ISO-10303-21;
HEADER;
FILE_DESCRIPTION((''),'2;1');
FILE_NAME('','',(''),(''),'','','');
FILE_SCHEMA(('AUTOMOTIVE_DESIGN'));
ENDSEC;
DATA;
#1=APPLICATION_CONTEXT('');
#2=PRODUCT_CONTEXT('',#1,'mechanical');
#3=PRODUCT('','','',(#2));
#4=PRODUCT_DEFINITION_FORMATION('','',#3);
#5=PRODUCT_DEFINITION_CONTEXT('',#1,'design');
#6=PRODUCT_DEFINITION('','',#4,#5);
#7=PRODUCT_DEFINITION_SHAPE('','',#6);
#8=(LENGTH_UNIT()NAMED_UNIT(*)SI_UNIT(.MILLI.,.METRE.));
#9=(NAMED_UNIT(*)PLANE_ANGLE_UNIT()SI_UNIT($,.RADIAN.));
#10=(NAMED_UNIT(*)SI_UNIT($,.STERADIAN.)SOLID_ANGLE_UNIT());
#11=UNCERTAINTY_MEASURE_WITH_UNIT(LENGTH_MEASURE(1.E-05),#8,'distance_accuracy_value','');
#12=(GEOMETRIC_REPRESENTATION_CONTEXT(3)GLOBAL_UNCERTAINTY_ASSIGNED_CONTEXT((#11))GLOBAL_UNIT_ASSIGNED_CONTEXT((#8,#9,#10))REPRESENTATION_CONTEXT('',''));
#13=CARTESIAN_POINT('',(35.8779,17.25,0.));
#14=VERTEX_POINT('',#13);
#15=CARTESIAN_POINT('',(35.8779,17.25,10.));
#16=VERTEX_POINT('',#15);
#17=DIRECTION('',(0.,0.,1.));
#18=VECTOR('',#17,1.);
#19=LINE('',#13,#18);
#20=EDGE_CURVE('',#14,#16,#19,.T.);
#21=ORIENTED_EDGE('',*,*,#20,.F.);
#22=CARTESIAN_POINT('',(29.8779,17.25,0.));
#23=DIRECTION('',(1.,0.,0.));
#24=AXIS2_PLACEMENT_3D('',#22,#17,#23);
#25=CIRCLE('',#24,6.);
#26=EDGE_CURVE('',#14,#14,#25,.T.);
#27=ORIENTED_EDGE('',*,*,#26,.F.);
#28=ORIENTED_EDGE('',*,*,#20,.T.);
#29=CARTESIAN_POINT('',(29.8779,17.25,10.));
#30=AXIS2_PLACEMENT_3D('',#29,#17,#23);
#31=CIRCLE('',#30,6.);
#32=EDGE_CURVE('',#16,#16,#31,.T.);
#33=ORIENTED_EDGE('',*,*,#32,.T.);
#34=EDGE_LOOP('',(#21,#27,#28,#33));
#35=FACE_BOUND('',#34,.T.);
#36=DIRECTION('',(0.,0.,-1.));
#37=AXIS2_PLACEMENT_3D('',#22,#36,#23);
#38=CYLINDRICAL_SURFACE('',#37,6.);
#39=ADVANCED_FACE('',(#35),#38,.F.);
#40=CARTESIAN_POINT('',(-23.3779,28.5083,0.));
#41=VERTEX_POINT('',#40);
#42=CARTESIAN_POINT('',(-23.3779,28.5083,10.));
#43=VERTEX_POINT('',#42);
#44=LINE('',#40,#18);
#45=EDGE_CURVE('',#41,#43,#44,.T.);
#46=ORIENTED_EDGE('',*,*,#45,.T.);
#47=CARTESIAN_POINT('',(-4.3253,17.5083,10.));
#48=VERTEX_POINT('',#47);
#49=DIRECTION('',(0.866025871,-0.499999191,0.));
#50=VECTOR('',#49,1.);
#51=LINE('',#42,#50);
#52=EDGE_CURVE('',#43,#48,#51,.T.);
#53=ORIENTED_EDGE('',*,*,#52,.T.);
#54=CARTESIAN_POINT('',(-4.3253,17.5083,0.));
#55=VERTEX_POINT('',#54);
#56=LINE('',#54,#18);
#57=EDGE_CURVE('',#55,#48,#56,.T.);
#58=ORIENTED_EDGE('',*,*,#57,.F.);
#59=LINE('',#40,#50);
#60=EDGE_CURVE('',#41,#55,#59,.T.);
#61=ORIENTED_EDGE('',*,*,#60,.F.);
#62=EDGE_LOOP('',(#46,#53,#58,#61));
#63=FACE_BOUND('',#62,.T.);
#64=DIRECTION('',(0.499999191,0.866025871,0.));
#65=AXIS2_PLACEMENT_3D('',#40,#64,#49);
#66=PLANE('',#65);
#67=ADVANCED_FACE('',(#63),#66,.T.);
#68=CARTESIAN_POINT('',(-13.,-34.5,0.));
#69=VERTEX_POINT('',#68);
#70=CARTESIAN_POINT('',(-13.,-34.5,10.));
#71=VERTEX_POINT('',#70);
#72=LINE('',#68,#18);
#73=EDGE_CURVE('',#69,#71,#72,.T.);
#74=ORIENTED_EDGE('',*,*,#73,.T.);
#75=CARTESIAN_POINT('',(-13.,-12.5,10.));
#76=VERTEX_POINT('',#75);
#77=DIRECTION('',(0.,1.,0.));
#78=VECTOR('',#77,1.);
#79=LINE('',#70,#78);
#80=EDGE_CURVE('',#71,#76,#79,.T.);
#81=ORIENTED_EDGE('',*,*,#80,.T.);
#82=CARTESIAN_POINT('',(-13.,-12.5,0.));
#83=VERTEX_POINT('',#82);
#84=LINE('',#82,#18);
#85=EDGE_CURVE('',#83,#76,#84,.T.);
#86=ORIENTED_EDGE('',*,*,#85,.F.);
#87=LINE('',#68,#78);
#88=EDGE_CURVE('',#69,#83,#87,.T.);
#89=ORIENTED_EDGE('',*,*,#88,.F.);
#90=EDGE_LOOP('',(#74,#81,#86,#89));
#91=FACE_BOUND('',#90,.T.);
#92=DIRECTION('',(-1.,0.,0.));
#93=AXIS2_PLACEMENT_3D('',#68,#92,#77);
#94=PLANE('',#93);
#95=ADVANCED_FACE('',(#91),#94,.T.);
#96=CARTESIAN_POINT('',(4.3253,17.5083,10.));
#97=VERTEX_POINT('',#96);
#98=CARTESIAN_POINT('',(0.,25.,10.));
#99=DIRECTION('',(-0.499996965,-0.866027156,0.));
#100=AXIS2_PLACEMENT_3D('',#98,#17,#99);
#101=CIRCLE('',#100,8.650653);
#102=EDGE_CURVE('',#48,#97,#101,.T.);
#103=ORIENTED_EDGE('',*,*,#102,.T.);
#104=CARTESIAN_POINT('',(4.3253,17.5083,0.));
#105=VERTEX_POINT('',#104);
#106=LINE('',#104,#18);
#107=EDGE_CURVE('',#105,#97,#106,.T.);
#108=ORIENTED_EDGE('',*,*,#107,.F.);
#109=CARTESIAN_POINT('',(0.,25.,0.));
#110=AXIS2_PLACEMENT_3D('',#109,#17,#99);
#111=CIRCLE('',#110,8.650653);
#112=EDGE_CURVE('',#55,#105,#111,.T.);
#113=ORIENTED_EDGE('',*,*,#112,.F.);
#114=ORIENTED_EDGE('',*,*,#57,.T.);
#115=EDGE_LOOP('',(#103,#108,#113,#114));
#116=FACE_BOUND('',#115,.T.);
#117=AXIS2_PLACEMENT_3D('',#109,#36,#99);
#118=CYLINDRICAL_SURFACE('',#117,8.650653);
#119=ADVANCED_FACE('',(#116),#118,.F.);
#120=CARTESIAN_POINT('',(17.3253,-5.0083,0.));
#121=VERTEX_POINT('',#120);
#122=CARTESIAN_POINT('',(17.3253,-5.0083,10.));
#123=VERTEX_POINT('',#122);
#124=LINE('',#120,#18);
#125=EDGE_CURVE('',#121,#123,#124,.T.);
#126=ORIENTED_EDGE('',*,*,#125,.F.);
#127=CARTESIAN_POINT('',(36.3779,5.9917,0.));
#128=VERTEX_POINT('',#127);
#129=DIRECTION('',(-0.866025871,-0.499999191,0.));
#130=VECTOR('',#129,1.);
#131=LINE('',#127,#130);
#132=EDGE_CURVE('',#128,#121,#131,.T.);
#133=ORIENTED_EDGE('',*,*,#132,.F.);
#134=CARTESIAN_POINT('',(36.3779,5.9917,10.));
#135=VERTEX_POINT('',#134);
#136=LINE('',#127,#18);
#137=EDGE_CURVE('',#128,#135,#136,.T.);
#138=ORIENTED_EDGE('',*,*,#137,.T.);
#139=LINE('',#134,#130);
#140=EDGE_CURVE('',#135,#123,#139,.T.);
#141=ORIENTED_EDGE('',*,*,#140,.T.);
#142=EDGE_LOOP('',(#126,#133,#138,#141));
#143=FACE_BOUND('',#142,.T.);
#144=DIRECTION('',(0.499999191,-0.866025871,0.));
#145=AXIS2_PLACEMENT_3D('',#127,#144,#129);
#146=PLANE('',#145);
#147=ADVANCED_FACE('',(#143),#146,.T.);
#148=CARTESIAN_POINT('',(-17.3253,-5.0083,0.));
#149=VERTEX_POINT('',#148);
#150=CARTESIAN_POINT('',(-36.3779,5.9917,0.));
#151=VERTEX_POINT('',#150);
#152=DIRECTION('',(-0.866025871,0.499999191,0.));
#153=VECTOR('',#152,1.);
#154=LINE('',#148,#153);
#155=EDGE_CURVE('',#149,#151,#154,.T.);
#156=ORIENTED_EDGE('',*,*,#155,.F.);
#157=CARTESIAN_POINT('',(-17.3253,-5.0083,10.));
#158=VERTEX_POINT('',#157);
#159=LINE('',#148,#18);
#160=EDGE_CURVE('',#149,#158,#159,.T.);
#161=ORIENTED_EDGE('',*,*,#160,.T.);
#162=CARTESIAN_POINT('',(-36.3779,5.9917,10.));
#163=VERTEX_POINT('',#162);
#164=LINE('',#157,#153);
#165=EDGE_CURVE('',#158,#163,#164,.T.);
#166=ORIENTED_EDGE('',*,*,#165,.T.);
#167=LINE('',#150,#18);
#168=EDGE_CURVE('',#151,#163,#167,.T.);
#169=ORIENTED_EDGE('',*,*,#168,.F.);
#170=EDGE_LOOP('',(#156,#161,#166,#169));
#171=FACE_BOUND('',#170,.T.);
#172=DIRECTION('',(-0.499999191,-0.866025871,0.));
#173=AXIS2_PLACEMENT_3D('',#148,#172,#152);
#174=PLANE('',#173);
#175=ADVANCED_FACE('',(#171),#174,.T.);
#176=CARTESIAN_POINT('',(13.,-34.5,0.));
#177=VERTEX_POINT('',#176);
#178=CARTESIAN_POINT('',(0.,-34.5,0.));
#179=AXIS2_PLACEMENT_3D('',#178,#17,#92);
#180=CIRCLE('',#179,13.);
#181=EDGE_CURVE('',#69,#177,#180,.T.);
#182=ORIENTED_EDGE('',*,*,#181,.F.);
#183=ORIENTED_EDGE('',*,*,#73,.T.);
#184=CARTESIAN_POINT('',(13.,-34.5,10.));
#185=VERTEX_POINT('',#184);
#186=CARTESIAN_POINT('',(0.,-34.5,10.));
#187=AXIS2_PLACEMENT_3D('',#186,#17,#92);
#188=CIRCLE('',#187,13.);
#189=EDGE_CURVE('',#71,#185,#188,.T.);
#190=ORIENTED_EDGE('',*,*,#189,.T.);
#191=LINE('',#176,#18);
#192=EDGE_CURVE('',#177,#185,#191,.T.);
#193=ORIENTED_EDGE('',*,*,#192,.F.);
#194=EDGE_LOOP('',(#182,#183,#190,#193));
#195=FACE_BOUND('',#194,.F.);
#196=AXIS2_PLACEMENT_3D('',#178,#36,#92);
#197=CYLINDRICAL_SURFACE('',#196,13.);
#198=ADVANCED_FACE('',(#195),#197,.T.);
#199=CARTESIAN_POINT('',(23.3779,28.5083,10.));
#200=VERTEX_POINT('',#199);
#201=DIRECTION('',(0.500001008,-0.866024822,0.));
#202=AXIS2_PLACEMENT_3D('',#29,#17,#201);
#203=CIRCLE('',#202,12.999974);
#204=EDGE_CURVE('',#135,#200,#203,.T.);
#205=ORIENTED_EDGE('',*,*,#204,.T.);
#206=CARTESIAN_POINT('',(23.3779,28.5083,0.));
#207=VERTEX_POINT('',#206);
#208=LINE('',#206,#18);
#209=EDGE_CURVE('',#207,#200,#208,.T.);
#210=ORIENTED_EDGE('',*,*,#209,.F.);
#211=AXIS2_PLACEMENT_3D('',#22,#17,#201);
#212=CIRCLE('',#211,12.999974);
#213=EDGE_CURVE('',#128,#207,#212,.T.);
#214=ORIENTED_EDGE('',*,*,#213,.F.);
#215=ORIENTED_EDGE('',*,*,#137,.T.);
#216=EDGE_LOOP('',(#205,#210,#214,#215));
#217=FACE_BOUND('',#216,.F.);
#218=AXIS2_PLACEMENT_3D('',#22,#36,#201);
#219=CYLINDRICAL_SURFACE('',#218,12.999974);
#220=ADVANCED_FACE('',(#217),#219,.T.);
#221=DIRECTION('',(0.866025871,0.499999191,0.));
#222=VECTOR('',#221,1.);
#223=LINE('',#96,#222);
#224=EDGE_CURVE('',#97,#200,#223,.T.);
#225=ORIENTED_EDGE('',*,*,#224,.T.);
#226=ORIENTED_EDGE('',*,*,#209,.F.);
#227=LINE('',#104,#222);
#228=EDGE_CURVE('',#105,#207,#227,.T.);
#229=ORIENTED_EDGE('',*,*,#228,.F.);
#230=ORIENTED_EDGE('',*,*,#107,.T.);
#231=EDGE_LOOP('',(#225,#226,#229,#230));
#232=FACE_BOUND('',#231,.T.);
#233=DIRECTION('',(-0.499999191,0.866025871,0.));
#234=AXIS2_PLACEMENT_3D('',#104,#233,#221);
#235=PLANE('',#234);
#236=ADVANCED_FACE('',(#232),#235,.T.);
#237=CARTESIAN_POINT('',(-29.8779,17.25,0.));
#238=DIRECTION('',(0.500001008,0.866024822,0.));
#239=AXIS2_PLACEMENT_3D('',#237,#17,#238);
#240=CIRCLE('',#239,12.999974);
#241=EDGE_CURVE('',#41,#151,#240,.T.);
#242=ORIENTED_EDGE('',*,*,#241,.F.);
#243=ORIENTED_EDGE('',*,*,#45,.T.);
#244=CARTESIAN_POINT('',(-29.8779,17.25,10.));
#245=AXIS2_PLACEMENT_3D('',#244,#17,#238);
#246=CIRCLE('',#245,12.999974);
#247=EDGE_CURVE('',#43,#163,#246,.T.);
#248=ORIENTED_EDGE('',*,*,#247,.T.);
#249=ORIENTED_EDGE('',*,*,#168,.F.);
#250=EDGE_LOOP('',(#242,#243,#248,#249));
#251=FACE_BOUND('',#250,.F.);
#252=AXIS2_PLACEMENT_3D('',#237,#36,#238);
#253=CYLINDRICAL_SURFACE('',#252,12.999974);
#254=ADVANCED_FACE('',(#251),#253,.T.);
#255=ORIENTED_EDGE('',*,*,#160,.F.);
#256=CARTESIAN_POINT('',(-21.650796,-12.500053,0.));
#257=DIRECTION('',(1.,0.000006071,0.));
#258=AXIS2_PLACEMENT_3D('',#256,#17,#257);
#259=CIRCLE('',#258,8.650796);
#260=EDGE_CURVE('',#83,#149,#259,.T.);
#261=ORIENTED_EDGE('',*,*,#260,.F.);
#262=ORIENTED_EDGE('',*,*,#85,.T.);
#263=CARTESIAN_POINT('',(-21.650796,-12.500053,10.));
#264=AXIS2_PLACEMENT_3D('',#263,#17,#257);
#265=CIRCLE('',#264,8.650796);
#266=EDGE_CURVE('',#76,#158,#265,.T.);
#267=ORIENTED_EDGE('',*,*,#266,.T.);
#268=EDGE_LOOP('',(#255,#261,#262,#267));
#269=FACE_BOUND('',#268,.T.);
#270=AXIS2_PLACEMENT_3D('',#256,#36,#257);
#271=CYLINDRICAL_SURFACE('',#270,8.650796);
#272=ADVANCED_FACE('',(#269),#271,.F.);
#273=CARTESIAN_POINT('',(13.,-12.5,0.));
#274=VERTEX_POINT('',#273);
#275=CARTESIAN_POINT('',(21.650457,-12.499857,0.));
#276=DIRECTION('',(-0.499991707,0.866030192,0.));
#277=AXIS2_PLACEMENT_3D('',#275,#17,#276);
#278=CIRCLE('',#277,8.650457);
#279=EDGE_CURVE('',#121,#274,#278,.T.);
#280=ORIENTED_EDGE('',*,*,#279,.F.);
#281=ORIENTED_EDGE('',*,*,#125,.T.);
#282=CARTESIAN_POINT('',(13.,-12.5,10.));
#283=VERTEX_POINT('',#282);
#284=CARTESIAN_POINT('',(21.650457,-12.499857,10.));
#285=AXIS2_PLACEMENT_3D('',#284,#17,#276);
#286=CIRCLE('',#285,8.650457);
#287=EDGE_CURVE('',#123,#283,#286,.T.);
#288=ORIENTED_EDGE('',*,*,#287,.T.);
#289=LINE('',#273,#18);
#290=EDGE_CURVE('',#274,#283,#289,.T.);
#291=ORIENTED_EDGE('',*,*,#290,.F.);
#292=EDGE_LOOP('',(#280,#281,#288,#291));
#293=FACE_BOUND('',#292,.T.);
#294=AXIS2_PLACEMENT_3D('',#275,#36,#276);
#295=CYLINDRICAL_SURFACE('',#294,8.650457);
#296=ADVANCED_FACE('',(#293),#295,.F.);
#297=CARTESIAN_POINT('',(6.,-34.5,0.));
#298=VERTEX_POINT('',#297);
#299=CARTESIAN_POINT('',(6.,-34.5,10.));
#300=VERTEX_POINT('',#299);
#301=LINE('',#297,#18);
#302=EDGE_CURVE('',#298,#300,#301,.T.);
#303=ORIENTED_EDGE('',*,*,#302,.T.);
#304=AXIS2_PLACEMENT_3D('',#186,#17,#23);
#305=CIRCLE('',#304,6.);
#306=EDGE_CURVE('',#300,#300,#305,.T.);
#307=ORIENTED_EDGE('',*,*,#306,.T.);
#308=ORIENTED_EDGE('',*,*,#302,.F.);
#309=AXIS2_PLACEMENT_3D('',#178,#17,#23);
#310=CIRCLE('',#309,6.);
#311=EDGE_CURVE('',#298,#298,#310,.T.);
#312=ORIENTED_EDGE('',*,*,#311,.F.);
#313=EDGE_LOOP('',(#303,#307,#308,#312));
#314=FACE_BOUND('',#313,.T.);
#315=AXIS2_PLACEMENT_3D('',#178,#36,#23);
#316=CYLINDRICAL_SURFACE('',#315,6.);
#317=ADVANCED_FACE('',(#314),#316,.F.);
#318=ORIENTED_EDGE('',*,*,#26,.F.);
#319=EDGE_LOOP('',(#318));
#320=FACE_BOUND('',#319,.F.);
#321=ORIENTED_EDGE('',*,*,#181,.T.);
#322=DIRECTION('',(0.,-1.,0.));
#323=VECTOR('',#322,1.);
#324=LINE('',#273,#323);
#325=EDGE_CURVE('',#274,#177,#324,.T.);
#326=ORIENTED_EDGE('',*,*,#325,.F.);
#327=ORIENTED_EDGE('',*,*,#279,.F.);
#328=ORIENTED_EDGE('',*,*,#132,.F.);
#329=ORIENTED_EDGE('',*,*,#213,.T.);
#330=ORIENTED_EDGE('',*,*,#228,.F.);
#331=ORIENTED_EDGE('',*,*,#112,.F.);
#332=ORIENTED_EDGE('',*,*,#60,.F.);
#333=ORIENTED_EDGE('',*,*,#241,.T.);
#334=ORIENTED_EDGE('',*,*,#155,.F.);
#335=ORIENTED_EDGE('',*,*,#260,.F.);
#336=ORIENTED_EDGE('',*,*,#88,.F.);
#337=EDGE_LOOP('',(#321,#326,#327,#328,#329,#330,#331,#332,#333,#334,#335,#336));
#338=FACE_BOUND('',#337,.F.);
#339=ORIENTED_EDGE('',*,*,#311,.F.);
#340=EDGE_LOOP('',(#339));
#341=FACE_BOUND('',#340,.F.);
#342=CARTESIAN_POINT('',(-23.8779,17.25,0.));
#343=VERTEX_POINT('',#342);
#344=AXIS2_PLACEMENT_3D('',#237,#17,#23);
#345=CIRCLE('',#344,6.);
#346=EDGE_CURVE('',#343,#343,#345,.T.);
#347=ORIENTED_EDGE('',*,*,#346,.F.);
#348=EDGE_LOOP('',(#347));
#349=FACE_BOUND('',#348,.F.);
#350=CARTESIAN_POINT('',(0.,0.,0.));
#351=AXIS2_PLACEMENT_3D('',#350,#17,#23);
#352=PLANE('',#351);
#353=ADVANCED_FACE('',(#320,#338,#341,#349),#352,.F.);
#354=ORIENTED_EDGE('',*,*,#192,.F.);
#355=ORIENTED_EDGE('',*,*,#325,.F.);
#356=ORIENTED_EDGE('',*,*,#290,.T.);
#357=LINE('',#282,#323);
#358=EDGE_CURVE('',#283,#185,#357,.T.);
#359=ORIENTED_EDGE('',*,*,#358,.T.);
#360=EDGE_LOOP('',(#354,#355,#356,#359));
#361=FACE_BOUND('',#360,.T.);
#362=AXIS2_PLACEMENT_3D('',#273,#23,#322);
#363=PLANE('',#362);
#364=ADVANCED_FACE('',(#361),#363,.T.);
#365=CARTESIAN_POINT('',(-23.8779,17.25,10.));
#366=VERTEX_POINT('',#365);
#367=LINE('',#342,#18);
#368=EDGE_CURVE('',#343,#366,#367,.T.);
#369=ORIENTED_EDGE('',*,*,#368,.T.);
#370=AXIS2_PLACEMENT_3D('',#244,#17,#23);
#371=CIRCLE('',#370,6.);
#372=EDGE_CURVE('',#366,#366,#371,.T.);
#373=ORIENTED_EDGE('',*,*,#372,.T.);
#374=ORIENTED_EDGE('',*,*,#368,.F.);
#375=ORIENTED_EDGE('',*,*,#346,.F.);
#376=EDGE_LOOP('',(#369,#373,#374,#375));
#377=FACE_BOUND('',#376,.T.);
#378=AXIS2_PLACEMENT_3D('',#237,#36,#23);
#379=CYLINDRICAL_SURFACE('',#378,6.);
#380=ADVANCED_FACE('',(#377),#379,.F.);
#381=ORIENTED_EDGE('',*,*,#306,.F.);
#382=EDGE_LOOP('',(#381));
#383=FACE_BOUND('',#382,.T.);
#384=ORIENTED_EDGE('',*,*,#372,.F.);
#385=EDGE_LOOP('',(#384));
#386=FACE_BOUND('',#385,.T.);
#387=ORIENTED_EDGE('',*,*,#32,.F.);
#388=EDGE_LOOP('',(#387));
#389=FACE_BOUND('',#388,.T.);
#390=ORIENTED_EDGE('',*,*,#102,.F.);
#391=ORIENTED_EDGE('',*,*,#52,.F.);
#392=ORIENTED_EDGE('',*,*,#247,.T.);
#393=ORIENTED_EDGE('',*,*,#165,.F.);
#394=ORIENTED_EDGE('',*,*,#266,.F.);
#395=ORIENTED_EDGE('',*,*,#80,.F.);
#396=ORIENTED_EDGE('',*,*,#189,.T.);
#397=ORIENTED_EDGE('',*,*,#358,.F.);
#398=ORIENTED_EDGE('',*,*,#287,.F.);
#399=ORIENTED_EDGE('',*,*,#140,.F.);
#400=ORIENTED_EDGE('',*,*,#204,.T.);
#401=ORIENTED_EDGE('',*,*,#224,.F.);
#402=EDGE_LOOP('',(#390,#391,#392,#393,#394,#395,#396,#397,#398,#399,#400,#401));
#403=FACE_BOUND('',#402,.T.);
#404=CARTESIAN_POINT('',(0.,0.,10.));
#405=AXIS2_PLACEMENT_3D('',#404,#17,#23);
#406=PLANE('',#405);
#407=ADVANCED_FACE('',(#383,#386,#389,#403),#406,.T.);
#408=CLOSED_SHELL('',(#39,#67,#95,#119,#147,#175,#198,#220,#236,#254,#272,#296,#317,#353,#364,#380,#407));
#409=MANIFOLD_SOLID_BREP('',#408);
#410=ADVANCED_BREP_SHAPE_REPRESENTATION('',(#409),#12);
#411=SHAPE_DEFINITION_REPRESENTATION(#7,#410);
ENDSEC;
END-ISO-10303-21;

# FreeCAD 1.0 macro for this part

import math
import FreeCAD as App
import Part
import Sketcher
from FreeCAD import Vector

doc = App.newDocument("Part")
body = doc.addObject("PartDesign::Body", "Body")

sketch1 = body.newObject("Sketcher::SketchObject", "Sketch")
sketch1.AttachmentSupport = (doc.getObject("XY_Plane"), [""])
sketch1.MapMode = "FlatFace"
sketch1.addGeometry(Part.LineSegment(Vector(-4, 18, 0), Vector(-23, 29, 0)), False)
sketch1.addGeometry(Part.ArcOfCircle(Part.Circle(Vector(-30, 17, 0), Vector(0, 0, 1), 13), math.radians(60), math.radians(240)), False)
sketch1.addGeometry(Part.LineSegment(Vector(-36, 6, 0), Vector(-17, -5, 0)), False)
sketch1.addGeometry(Part.ArcOfCircle(Part.Circle(Vector(-22, -12, 0), Vector(0, 0, 1), 9), math.radians(0), math.radians(60)), False)
sketch1.addGeometry(Part.LineSegment(Vector(-13, -12, 0), Vector(-13, -34, 0)), False)
sketch1.addGeometry(Part.ArcOfCircle(Part.Circle(Vector(0, -34, 0), Vector(0, 0, 1), 13), math.radians(180), math.radians(360)), False)
sketch1.addGeometry(Part.LineSegment(Vector(13, -34, 0), Vector(13, -12, 0)), False)
sketch1.addGeometry(Part.ArcOfCircle(Part.Circle(Vector(22, -12, 0), Vector(0, 0, 1), 9), math.radians(120), math.radians(180)), False)
sketch1.addGeometry(Part.LineSegment(Vector(17, -5, 0), Vector(36, 6, 0)), False)
sketch1.addGeometry(Part.ArcOfCircle(Part.Circle(Vector(30, 17, 0), Vector(0, 0, 1), 13), math.radians(-60), math.radians(120)), False)
sketch1.addGeometry(Part.LineSegment(Vector(23, 29, 0), Vector(4, 18, 0)), False)
sketch1.addGeometry(Part.ArcOfCircle(Part.Circle(Vector(0, 25, 0), Vector(0, 0, 1), 9), math.radians(-120), math.radians(-60)), False)
sketch1.addGeometry(Part.Circle(Vector(0, -34, 0), Vector(0, 0, 1), 6), False)
sketch1.addGeometry(Part.Circle(Vector(-30, 17, 0), Vector(0, 0, 1), 6), False)
sketch1.addGeometry(Part.Circle(Vector(30, 17, 0), Vector(0, 0, 1), 6), False)
sketch1.addConstraint(Sketcher.Constraint("Tangent", 0, 2, 1, 1))
sketch1.addConstraint(Sketcher.Constraint("Tangent", 1, 2, 2, 1))
sketch1.addConstraint(Sketcher.Constraint("Tangent", 2, 2, 3, 2))
sketch1.addConstraint(Sketcher.Constraint("Tangent", 3, 1, 4, 1))
sketch1.addConstraint(Sketcher.Constraint("Tangent", 4, 2, 5, 1))
sketch1.addConstraint(Sketcher.Constraint("Tangent", 5, 2, 6, 1))
sketch1.addConstraint(Sketcher.Constraint("Tangent", 6, 2, 7, 2))
sketch1.addConstraint(Sketcher.Constraint("Tangent", 7, 1, 8, 1))
sketch1.addConstraint(Sketcher.Constraint("Tangent", 8, 2, 9, 1))
sketch1.addConstraint(Sketcher.Constraint("Tangent", 9, 2, 10, 1))
sketch1.addConstraint(Sketcher.Constraint("Tangent", 10, 2, 11, 2))
sketch1.addConstraint(Sketcher.Constraint("Tangent", 11, 1, 0, 1))
sketch1.addConstraint(Sketcher.Constraint("Vertical", 4))
sketch1.addConstraint(Sketcher.Constraint("Vertical", 6))
sketch1.addConstraint(Sketcher.Constraint("Coincident", 12, 3, 5, 3))
sketch1.addConstraint(Sketcher.Constraint("Coincident", 13, 3, 1, 3))
sketch1.addConstraint(Sketcher.Constraint("Coincident", 14, 3, 9, 3))
sketch1.addConstraint(Sketcher.Constraint("Equal", 1, 5))
sketch1.addConstraint(Sketcher.Constraint("Equal", 3, 7))
sketch1.addConstraint(Sketcher.Constraint("Equal", 5, 9))
sketch1.addConstraint(Sketcher.Constraint("Equal", 7, 11))
sketch1.addConstraint(Sketcher.Constraint("Equal", 12, 13))
sketch1.addConstraint(Sketcher.Constraint("Equal", 13, 14))
sketch1.addConstraint(Sketcher.Constraint("Symmetric", 3, 3, 7, 3, -2))
sketch1.addConstraint(Sketcher.Constraint("Symmetric", 1, 3, 9, 3, -2))
sketch1.addConstraint(Sketcher.Constraint("PointOnObject", 11, 3, -2))
sketch1.addConstraint(Sketcher.Constraint("Parallel", 0, 2))
sketch1.addConstraint(Sketcher.Constraint("Equal", 0, 2))
sketch1.addConstraint(Sketcher.Constraint("Diameter", 12, 12.0))
sketch1.addConstraint(Sketcher.Constraint("DistanceY", -1, 1, 11, 3, 25.0))
sketch1.addConstraint(Sketcher.Constraint("Radius", 1, 13.0))
sketch1.addConstraint(Sketcher.Constraint("DistanceY", 5, 3, -1, 1, 34.5))
sketch1.addConstraint(Sketcher.Constraint("DistanceY", 4, 2, 4, 1, 22.0))
sketch1.addConstraint(Sketcher.Constraint("Distance", 0, 22.0))
pad1 = body.newObject("PartDesign::Pad", "Pad")
pad1.Profile = sketch1
pad1.Length = 10

doc.recompute()
